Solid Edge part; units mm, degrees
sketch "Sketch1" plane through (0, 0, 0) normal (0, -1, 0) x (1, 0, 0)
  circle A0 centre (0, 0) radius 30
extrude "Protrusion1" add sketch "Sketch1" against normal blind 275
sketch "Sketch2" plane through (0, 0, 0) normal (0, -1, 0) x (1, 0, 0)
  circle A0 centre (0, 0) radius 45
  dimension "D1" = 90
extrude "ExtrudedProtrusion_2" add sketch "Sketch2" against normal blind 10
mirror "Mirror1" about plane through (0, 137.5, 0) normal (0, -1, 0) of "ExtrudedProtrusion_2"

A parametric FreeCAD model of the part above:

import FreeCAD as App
import Part
import Sketcher
from FreeCAD import Vector

doc = App.newDocument("Part")
body = doc.addObject("PartDesign::Body", "Body")

# Sketch on XZ plane
sketch1 = body.newObject("Sketcher::SketchObject", "Sketch")
sketch1.AttachmentSupport = (doc.getObject("XZ_Plane"), [""])
sketch1.MapMode = "FlatFace"
sketch1.addGeometry(Part.Circle(Vector(0, 0, 0), Vector(0, 0, 1), 30), False)
sketch1.addConstraint([
    Sketcher.Constraint("Coincident", 0, 3, -1, 1),
    Sketcher.Constraint("Diameter", 0, 60.0),
])
pad1 = body.newObject("PartDesign::Pad", "Pad")
pad1.Profile = sketch1
pad1.Length = 275
pad1.Reversed = True

# Sketch on XZ plane
sketch2 = body.newObject("Sketcher::SketchObject", "Sketch001")
sketch2.AttachmentSupport = (doc.getObject("XZ_Plane"), [""])
sketch2.MapMode = "FlatFace"
sketch2.addGeometry(Part.Circle(Vector(0, 0, 0), Vector(0, 0, 1), 45), False)
sketch2.addConstraint([
    Sketcher.Constraint("Coincident", 0, 3, -1, 1),
    Sketcher.Constraint("Diameter", 0, 90.0),
])
pad2 = body.newObject("PartDesign::Pad", "Pad001")
pad2.Profile = sketch2
pad2.Length = 10
pad2.Reversed = True
doc.recompute()

datumplane = body.newObject("PartDesign::Plane", "DatumPlane")
datumplane.AttachmentSupport = (doc.getObject("XZ_Plane"), [""])
datumplane.MapMode = "FlatFace"
datumplane.AttachmentOffset = App.Placement(Vector(0, 0, -137.5), App.Rotation())
mirrored = body.newObject("PartDesign::Mirrored", "Mirrored")
mirrored.Originals = [pad2]
mirrored.MirrorPlane = (datumplane, [""])
body.Tip = mirrored

doc.recompute()
